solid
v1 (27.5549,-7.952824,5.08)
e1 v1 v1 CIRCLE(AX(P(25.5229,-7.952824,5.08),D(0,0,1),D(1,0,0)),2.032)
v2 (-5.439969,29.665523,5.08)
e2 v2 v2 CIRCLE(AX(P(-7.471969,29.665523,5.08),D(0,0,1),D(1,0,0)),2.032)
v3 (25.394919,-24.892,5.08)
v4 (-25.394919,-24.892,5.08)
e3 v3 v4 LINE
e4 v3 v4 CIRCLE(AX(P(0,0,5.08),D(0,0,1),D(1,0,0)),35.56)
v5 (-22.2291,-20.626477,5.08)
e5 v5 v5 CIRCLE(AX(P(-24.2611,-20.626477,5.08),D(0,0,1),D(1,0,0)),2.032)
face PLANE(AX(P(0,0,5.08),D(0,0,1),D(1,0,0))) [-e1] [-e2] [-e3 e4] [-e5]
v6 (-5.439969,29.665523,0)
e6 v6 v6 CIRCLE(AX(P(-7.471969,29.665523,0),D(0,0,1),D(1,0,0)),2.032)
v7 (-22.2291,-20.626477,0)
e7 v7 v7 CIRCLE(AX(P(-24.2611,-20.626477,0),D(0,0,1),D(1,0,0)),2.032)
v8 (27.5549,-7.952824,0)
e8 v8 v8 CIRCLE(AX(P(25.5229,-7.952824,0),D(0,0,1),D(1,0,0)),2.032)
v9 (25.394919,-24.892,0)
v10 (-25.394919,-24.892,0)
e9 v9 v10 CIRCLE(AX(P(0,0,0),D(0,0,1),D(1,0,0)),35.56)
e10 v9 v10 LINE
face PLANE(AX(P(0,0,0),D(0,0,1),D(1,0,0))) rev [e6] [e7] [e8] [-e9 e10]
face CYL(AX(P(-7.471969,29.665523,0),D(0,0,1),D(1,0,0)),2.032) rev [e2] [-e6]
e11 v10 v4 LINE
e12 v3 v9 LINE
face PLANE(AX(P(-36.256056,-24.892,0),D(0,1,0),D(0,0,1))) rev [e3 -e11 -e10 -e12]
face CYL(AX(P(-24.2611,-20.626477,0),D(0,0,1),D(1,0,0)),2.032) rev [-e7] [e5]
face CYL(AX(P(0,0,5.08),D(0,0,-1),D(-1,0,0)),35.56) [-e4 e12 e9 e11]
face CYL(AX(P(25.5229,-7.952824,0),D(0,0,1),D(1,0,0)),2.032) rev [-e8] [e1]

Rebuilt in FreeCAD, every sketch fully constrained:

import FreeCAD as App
import Part
import Sketcher
from FreeCAD import Vector
Q = App.Units.Quantity

doc = App.newDocument("Part")
body = doc.addObject("PartDesign::Body", "Body")

# Sketch on XY plane
sketch1 = body.newObject("Sketcher::SketchObject", "Sketch")
sketch1.AttachmentSupport = (doc.getObject("XY_Plane"), [""])
sketch1.MapMode = "FlatFace"
sketch1.addGeometry(Part.Circle(Vector(0, 0, 0), Vector(0, 0, 1), 36), False)
sketch1.addConstraint([
    Sketcher.Constraint("Coincident", 0, 3, -1, 1),
    Sketcher.Constraint("Diameter", 0, Q("2.8 in")),
])
pad1 = body.newObject("PartDesign::Pad", "Pad")
pad1.Profile = sketch1
pad1.Length = Q("0.2 in")

# Sketch on XY plane
sketch2 = body.newObject("Sketcher::SketchObject", "Sketch001")
sketch2.AttachmentSupport = (doc.getObject("XY_Plane"), [""])
sketch2.MapMode = "FlatFace"
sketch2.AttachmentOffset = App.Placement(Vector(0, 0, 0.2 * 25.4), App.Rotation())
sketch2.addGeometry([
    Part.LineSegment(Vector(-36, -36, 0), Vector(34, -36, 0)),
    Part.LineSegment(Vector(34, -36, 0), Vector(34, -25, 0)),
    Part.LineSegment(Vector(34, -25, 0), Vector(-36, -25, 0)),
    Part.LineSegment(Vector(-36, -25, 0), Vector(-36, -36, 0)),
], False)
sketch2.addConstraint([
    Sketcher.Constraint("Coincident", 0, 2, 1, 1),
    Sketcher.Constraint("Coincident", 1, 2, 2, 1),
    Sketcher.Constraint("Coincident", 2, 2, 3, 1),
    Sketcher.Constraint("Coincident", 3, 2, 0, 1),
    Sketcher.Constraint("Horizontal", 0),
    Sketcher.Constraint("Vertical", 1),
    Sketcher.Constraint("Horizontal", 2),
    Sketcher.Constraint("Vertical", 3),
    Sketcher.Constraint("DistanceY", 1, 1, 1, 2, Q("0.42 in")),
    Sketcher.Constraint("DistanceY", 0, 2, -1, 1, Q("1.4 in")),
    Sketcher.Constraint("DistanceX", 0, 1, 0, 2, Q("70.006414 mm")),
    Sketcher.Constraint("DistanceX", -1, 1, 0, 2, Q("33.750359 mm")),
])
pocket1 = body.newObject("PartDesign::Pocket", "Pocket")
pocket1.Profile = sketch2
pocket1.Type = "ThroughAll"

# Sketch on XY plane
sketch3 = body.newObject("Sketcher::SketchObject", "Sketch002")
sketch3.AttachmentSupport = (doc.getObject("XY_Plane"), [""])
sketch3.MapMode = "FlatFace"
sketch3.AttachmentOffset = App.Placement(Vector(0, 0, 0.2 * 25.4), App.Rotation())
sketch3.addGeometry([
    Part.Circle(Vector(-24.3, -20.6, 0), Vector(0, 0, 1), 2),
    Part.Circle(Vector(-7.5, 29.7, 0), Vector(0, 0, 1), 2),
    Part.Circle(Vector(25.5, -8, 0), Vector(0, 0, 1), 2),
], False)
sketch3.addConstraint([
    Sketcher.Constraint("Equal", 0, 1),
    Sketcher.Constraint("Equal", 1, 2),
    Sketcher.Constraint("Diameter", 0, Q("0.16 in")),
    Sketcher.Constraint("DistanceY", 0, 3, 1, 3, Q("1.98 in")),
    Sketcher.Constraint("DistanceX", 0, 3, 2, 3, Q("1.96 in")),
    Sketcher.Constraint("DistanceX", 0, 3, -1, 1, Q("24.2611 mm")),
    Sketcher.Constraint("DistanceX", 1, 3, -1, 1, Q("7.471969 mm")),
    Sketcher.Constraint("DistanceY", 0, 3, -1, 1, Q("20.626477 mm")),
    Sketcher.Constraint("DistanceY", 2, 3, -1, 1, Q("7.952824 mm")),
])
pocket2 = body.newObject("PartDesign::Pocket", "Pocket001")
pocket2.Profile = sketch3
pocket2.Type = "ThroughAll"

doc.recompute()
